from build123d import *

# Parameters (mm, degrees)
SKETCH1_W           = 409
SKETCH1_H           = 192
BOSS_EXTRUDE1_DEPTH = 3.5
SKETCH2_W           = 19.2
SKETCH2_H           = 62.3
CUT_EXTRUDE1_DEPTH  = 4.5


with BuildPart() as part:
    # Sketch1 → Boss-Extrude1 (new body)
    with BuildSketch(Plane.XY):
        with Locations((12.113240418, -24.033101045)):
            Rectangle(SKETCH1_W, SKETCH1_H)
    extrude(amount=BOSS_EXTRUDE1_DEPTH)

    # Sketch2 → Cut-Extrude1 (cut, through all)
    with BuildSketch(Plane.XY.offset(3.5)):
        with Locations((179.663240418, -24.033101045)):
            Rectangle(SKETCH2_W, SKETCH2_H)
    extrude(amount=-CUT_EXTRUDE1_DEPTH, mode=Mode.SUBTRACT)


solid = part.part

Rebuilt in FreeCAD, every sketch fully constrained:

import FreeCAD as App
import Part
import Sketcher


def add_polygon(sketch, points):
    """Adds a closed chain of lines whose ends are joined by coincident constraints."""
    first, n = sketch.GeometryCount, len(points)
    for a, b in zip(points, points[1:] + points[:1]):
        sketch.addGeometry(Part.LineSegment(App.Vector(*a, 0), App.Vector(*b, 0)), False)
    for i in range(n):
        sketch.addConstraint(Sketcher.Constraint("Coincident", first + i, 2, first + (i + 1) % n, 1))

doc = App.newDocument("Part")
params = doc.addObject("Spreadsheet::Sheet", "Params")
for row, (alias, value) in enumerate([
    ("sketch1_width", "409 mm"),
    ("sketch1_height", "192 mm"),
    ("pad1_length", "3.5 mm"),
    ("sketch2_width", "19.2 mm"),
    ("sketch2_height", "62.3 mm"),
], start=1):
    params.set(f"A{row}", alias)
    params.set(f"B{row}", "=" + value)
    params.setAlias(f"B{row}", alias)

body = doc.addObject("PartDesign::Body", "Body")

# Sketch on XY plane
sketch1 = doc.addObject("Sketcher::SketchObject", "Sketch")
body.addObject(sketch1)
sketch1.AttachmentSupport = (doc.XY_Plane, [""])
sketch1.MapMode = "FlatFace"
add_polygon(sketch1, [(-192, 72), (-192, -120), (217, -120), (217, 72)])  # lines 0-3
sketch1.addConstraint(Sketcher.Constraint("Vertical", 0))
sketch1.addConstraint(Sketcher.Constraint("Horizontal", 1))
sketch1.addConstraint(Sketcher.Constraint("Vertical", 2))
sketch1.addConstraint(Sketcher.Constraint("Horizontal", 3))
sketch1.addConstraint(Sketcher.Constraint("DistanceX", 1, 1, 1, 2, 409.0))
sketch1.addConstraint(Sketcher.Constraint("DistanceY", 0, 2, 0, 1, 192.0))
sketch1.addConstraint(Sketcher.Constraint("DistanceY", 0, 2, -1, 1, 120.033101))
sketch1.addConstraint(Sketcher.Constraint("DistanceX", 0, 2, -1, 1, 192.38676))
sketch1.setExpression("Constraints[8]", "Params.sketch1_width")
sketch1.setExpression("Constraints[9]", "Params.sketch1_height")
pad1 = doc.addObject("PartDesign::Pad", "Pad")
body.addObject(pad1)
pad1.Profile = sketch1
pad1.setExpression("Length", "Params.pad1_length")

# Sketch on XY plane
sketch2 = doc.addObject("Sketcher::SketchObject", "Sketch001")
body.addObject(sketch2)
sketch2.AttachmentSupport = (doc.XY_Plane, [""])
sketch2.MapMode = "FlatFace"
sketch2.AttachmentOffset = App.Placement(App.Vector(0, 0, 3.5), App.Rotation())
add_polygon(sketch2, [(170, 7), (170, -55), (189, -55), (189, 7)])  # lines 0-3
sketch2.addConstraint(Sketcher.Constraint("Vertical", 0))
sketch2.addConstraint(Sketcher.Constraint("Horizontal", 1))
sketch2.addConstraint(Sketcher.Constraint("Vertical", 2))
sketch2.addConstraint(Sketcher.Constraint("Horizontal", 3))
sketch2.addConstraint(Sketcher.Constraint("DistanceX", 1, 1, 1, 2, 19.2))
sketch2.addConstraint(Sketcher.Constraint("DistanceY", 0, 2, 0, 1, 62.3))
sketch2.addConstraint(Sketcher.Constraint("DistanceY", 0, 2, -1, 1, 55.183101))
sketch2.addConstraint(Sketcher.Constraint("DistanceX", -1, 1, 0, 2, 170.06324))
sketch2.setExpression("Constraints[8]", "Params.sketch2_width")
sketch2.setExpression("Constraints[9]", "Params.sketch2_height")
pocket1 = doc.addObject("PartDesign::Pocket", "Pocket")
body.addObject(pocket1)
pocket1.Profile = sketch2
pocket1.Type = "ThroughAll"

doc.recompute()
